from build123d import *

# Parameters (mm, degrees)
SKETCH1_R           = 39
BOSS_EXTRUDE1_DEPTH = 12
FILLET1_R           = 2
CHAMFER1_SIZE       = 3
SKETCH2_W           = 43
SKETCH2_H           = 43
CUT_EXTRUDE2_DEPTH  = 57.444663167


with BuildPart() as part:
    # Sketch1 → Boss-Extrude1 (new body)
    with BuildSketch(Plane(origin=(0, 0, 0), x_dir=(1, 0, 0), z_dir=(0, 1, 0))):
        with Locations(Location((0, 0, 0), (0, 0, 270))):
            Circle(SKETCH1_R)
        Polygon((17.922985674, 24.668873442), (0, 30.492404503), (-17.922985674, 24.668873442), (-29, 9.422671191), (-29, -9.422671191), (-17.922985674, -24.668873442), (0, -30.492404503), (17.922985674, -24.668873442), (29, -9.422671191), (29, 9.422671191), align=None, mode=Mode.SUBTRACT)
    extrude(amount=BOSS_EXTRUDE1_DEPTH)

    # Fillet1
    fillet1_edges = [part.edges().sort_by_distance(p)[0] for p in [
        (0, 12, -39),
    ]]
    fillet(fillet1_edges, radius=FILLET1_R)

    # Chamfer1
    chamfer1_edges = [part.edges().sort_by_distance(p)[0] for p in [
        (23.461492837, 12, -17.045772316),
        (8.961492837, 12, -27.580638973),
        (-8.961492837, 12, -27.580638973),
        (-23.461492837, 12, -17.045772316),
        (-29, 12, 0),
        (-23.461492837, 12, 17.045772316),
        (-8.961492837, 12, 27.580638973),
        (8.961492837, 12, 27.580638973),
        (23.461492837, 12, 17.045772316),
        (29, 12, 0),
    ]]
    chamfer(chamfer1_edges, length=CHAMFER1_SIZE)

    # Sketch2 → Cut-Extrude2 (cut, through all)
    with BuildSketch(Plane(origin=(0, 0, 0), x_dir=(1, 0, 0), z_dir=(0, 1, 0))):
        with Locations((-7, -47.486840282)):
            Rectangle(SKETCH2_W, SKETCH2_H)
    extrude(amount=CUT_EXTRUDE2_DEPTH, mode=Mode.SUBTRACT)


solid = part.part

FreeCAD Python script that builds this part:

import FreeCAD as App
import Part
import Sketcher

V = App.Vector
Q = App.Units.Quantity


def edges_at(feature, points):
    """Names of the edges that pass closest to the given points."""
    edges = feature.Shape.Edges
    near = lambda p: min(range(len(edges)), key=lambda i: edges[i].distToShape(Part.Vertex(*p))[0])
    return sorted({f"Edge{near(p) + 1}" for p in points})

doc = App.newDocument("Part")
body = doc.addObject("PartDesign::Body", "Body")

sketch1 = body.newObject("Sketcher::SketchObject", "Sketch")
sketch1.AttachmentSupport = (doc.getObject("XZ_Plane"), [""])
sketch1.MapMode = "FlatFace"
sketch1.addGeometry([
    Part.Circle(V(0, 0, 0), V(0, 0, 1), 39),
    Part.LineSegment(V(0, -30, 0), V(18, -25, 0)),
    Part.LineSegment(V(18, -25, 0), V(29, -9, 0)),
    Part.LineSegment(V(29, -9, 0), V(29, 9, 0)),
    Part.LineSegment(V(29, 9, 0), V(18, 25, 0)),
    Part.LineSegment(V(18, 25, 0), V(0, 30, 0)),
    Part.LineSegment(V(0, 30, 0), V(-18, 25, 0)),
    Part.LineSegment(V(-18, 25, 0), V(-29, 9, 0)),
    Part.LineSegment(V(-29, 9, 0), V(-29, -9, 0)),
    Part.LineSegment(V(-29, -9, 0), V(-18, -25, 0)),
    Part.LineSegment(V(-18, -25, 0), V(0, -30, 0)),
], False)
sketch1.addConstraint([
    Sketcher.Constraint("Coincident", 1, 2, 2, 1),
    Sketcher.Constraint("Coincident", 2, 2, 3, 1),
    Sketcher.Constraint("Coincident", 3, 2, 4, 1),
    Sketcher.Constraint("Coincident", 4, 2, 5, 1),
    Sketcher.Constraint("Coincident", 5, 2, 6, 1),
    Sketcher.Constraint("Coincident", 6, 2, 7, 1),
    Sketcher.Constraint("Coincident", 7, 2, 8, 1),
    Sketcher.Constraint("Coincident", 8, 2, 9, 1),
    Sketcher.Constraint("Coincident", 9, 2, 10, 1),
    Sketcher.Constraint("Coincident", 10, 2, 1, 1),
    Sketcher.Constraint("Vertical", 3),
    Sketcher.Constraint("Vertical", 8),
    Sketcher.Constraint("Coincident", 0, 3, -1, 1),
    Sketcher.Constraint("Symmetric", 1, 2, 6, 2, -1, 1),
    Sketcher.Constraint("Symmetric", 2, 2, 7, 2, -1, 1),
    Sketcher.Constraint("Symmetric", 4, 2, 9, 2, -1, 1),
    Sketcher.Constraint("Symmetric", 5, 2, 10, 2, -1, 1),
    Sketcher.Constraint("Symmetric", 4, 2, 6, 2, -2),
    Sketcher.Constraint("PointOnObject", 5, 2, -2),
    Sketcher.Constraint("Parallel", 4, 9),
    Sketcher.Constraint("Horizontal", 3, 2, 7, 2),
    Sketcher.Constraint("Equal", 1, 2),
    Sketcher.Constraint("Diameter", 0, 78.0),
    Sketcher.Constraint("Angle", 1, Q("18 deg")),
    Sketcher.Constraint("Angle", 2, Q("54 deg")),
    Sketcher.Constraint("DistanceX", -1, 1, 2, 2, 29.0),
    Sketcher.Constraint("DistanceY", 3, 1, 3, 2, 18.845342),
])
pad1 = body.newObject("PartDesign::Pad", "Pad")
pad1.Profile = sketch1
pad1.Length = 12
pad1.Reversed = True
doc.recompute()

fillet = body.newObject("PartDesign::Fillet", "Fillet")
fillet.Base = (pad1, edges_at(pad1, [(0, 12, -39)]))
fillet.Radius = 2
doc.recompute()

chamfer = body.newObject("PartDesign::Chamfer", "Chamfer")
chamfer.Base = (fillet, edges_at(fillet, [
    (23.461, 12, -17.046),
    (8.961, 12, -27.581),
    (-8.961, 12, -27.581),
    (-23.461, 12, -17.046),
    (-29, 12, 0),
    (-23.461, 12, 17.046),
    (-8.961, 12, 27.581),
    (8.961, 12, 27.581),
    (23.461, 12, 17.046),
    (29, 12, 0),
]))
chamfer.Size = 3

sketch2 = body.newObject("Sketcher::SketchObject", "Sketch001")
sketch2.AttachmentSupport = (doc.getObject("XZ_Plane"), [""])
sketch2.MapMode = "FlatFace"
sketch2.addGeometry([
    Part.LineSegment(V(-28, 26, 0), V(-28, 69, 0)),
    Part.LineSegment(V(-28, 69, 0), V(14, 69, 0)),
    Part.LineSegment(V(14, 69, 0), V(14, 26, 0)),
    Part.LineSegment(V(14, 26, 0), V(-28, 26, 0)),
], False)
sketch2.addConstraint([
    Sketcher.Constraint("Coincident", 0, 2, 1, 1),
    Sketcher.Constraint("Coincident", 1, 2, 2, 1),
    Sketcher.Constraint("Coincident", 2, 2, 3, 1),
    Sketcher.Constraint("Coincident", 3, 2, 0, 1),
    Sketcher.Constraint("Vertical", 0),
    Sketcher.Constraint("Horizontal", 1),
    Sketcher.Constraint("Vertical", 2),
    Sketcher.Constraint("Horizontal", 3),
    Sketcher.Constraint("Equal", 3, 0),
    Sketcher.Constraint("DistanceX", 1, 1, 1, 2, 43.0),
    Sketcher.Constraint("DistanceX", 0, 2, -1, 1, 28.5),
    Sketcher.Constraint("DistanceY", -1, 1, 0, 2, 68.98684),
])
pocket1 = body.newObject("PartDesign::Pocket", "Pocket")
pocket1.Profile = sketch2
pocket1.Type = "ThroughAll"

doc.recompute()
